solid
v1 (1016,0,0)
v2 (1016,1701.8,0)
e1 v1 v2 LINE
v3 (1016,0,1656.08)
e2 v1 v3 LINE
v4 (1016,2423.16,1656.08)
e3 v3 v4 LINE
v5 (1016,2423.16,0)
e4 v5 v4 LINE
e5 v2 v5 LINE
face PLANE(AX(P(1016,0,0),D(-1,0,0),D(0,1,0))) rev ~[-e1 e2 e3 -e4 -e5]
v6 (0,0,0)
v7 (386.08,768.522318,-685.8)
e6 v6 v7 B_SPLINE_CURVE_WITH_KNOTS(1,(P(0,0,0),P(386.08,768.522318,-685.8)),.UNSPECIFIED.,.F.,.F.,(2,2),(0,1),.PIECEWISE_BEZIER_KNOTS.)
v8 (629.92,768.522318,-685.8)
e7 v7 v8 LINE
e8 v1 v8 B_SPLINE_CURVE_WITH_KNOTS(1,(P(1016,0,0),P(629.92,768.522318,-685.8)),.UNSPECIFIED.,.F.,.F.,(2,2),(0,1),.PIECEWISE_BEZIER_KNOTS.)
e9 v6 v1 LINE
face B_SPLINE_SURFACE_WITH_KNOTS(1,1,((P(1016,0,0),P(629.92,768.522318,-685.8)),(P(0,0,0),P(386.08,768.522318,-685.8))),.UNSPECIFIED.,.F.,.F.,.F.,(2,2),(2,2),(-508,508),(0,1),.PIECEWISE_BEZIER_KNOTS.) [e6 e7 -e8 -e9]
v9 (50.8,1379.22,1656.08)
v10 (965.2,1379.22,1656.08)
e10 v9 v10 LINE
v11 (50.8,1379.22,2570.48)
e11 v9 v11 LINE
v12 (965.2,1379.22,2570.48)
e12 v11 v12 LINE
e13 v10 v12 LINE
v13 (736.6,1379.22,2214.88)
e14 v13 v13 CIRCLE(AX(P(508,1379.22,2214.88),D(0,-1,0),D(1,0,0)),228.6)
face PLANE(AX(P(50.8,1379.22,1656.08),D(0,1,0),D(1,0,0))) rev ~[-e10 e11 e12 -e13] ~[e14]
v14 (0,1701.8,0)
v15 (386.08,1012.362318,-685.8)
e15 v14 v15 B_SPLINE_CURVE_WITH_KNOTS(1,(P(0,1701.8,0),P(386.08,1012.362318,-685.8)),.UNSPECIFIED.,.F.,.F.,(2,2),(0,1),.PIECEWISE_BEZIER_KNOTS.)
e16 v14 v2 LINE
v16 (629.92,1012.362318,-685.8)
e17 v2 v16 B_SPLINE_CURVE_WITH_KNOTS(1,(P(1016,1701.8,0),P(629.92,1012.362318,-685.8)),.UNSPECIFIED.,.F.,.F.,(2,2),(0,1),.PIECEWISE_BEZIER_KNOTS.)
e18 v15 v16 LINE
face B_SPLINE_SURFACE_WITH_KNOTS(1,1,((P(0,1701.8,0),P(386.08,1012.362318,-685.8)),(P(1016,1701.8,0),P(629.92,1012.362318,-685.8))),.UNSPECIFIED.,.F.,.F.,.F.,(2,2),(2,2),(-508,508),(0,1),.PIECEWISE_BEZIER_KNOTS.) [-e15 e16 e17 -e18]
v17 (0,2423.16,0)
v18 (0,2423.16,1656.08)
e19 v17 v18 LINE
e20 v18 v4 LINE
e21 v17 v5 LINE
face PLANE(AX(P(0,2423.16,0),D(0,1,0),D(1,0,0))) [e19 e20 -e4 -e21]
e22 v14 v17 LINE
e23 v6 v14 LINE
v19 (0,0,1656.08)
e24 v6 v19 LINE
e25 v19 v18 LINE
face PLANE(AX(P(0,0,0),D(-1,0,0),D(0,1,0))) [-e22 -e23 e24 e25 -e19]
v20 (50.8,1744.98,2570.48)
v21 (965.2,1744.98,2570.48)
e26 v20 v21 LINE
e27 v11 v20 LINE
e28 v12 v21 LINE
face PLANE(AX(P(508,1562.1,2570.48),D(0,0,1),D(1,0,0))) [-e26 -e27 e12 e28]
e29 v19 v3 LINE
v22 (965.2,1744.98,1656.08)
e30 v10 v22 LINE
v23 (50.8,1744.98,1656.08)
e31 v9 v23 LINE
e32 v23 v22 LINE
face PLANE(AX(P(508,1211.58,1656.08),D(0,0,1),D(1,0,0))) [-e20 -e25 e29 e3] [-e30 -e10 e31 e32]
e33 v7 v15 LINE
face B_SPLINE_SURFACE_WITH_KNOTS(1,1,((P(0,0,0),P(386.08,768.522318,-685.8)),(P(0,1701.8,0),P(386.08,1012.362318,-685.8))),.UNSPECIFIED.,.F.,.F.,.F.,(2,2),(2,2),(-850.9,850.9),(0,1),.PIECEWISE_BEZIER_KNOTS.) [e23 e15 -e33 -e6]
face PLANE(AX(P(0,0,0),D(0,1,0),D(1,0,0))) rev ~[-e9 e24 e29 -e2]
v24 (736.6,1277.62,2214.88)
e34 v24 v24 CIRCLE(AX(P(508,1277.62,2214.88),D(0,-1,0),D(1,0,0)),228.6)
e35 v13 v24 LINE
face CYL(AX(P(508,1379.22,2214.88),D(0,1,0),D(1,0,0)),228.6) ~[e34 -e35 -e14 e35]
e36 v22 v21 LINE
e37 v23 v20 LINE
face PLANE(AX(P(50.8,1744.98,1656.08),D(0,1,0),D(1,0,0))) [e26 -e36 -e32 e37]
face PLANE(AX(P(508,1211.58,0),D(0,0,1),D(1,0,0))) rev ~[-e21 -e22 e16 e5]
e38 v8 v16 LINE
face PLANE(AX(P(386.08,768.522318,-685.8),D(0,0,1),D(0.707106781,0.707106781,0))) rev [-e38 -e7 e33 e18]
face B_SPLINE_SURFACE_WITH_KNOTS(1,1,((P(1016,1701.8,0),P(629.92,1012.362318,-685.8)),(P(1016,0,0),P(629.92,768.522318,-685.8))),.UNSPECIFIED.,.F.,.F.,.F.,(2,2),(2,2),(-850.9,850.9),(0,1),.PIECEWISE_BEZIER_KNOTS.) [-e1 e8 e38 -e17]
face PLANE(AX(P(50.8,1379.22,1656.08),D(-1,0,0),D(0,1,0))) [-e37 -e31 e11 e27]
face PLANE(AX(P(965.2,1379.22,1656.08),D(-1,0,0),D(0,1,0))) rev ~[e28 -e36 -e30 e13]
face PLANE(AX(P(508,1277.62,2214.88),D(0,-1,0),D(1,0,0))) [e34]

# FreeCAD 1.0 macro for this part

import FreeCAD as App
import Part
import Sketcher
Q = App.Units.Quantity


def add_polygon(sketch, points):
    """Adds a closed chain of lines whose ends are joined by coincident constraints."""
    first, n = sketch.GeometryCount, len(points)
    for a, b in zip(points, points[1:] + points[:1]):
        sketch.addGeometry(Part.LineSegment(App.Vector(*a, 0), App.Vector(*b, 0)), False)
    for i in range(n):
        sketch.addConstraint(Sketcher.Constraint("Coincident", first + i, 2, first + (i + 1) % n, 1))

doc = App.newDocument("Part")
body = doc.addObject("PartDesign::Body", "Body")

sketch1 = body.newObject("Sketcher::SketchObject", "Sketch")
sketch1.AttachmentSupport = (doc.getObject("XY_Plane"), [""])
sketch1.MapMode = "FlatFace"
add_polygon(sketch1, [(0, 2423), (0, 0), (1016, 0), (1016, 2423)])
sketch1.addConstraint([
    Sketcher.Constraint("Vertical", 0),
    Sketcher.Constraint("Horizontal", 1),
    Sketcher.Constraint("Vertical", 2),
    Sketcher.Constraint("Horizontal", 3),
    Sketcher.Constraint("Coincident", 0, 2, -1, 1),
    Sketcher.Constraint("DistanceX", 1, 1, 1, 2, Q("40 in")),
    Sketcher.Constraint("DistanceY", 0, 2, 0, 1, Q("95.4 in")),
])
pad1 = body.newObject("PartDesign::Pad", "Pad")
pad1.Profile = sketch1
pad1.Length = Q("65.2 in")

sketch2 = body.newObject("Sketcher::SketchObject", "Sketch001")
sketch2.AttachmentSupport = (doc.getObject("XY_Plane"), [""])
sketch2.MapMode = "FlatFace"
sketch2.AttachmentOffset = App.Placement(App.Vector(0, 0, 65.2 * 25.4), App.Rotation())
add_polygon(sketch2, [(51, 1745), (51, 1379), (965, 1379), (965, 1745)])
sketch2.addConstraint([
    Sketcher.Constraint("Vertical", 0),
    Sketcher.Constraint("Horizontal", 1),
    Sketcher.Constraint("Vertical", 2),
    Sketcher.Constraint("Horizontal", 3),
    Sketcher.Constraint("DistanceX", 1, 1, 1, 2, Q("36 in")),
    Sketcher.Constraint("DistanceY", 0, 2, 0, 1, Q("14.4 in")),
    Sketcher.Constraint("DistanceX", -1, 1, 0, 2, Q("2 in")),
    Sketcher.Constraint("DistanceY", -1, 1, 0, 2, Q("54.3 in")),
])
pad2 = body.newObject("PartDesign::Pad", "Pad001")
pad2.Profile = sketch2
pad2.Length = Q("36 in")

sketch3 = body.newObject("Sketcher::SketchObject", "Sketch002")
sketch3.AttachmentSupport = (doc.getObject("XZ_Plane"), [""])
sketch3.MapMode = "FlatFace"
sketch3.AttachmentOffset = App.Placement(App.Vector(0, 0, -54.3 * 25.4), App.Rotation())
sketch3.addGeometry(Part.Circle(App.Vector(508, 2215, 0), App.Vector(0, 0, 1), 229), False)
sketch3.addConstraint([
    Sketcher.Constraint("Diameter", 0, Q("18 in")),
    Sketcher.Constraint("DistanceX", -1, 1, 0, 3, Q("20 in")),
    Sketcher.Constraint("DistanceY", -1, 1, 0, 3, Q("87.2 in")),
])
pad3 = body.newObject("PartDesign::Pad", "Pad002")
pad3.Profile = sketch3
pad3.Length = Q("4 in")

sketch4 = body.newObject("Sketcher::SketchObject", "Sketch003")
sketch4.AttachmentSupport = (doc.getObject("XY_Plane"), [""])
sketch4.MapMode = "FlatFace"
add_polygon(sketch4, [(0, 0), (0, 1702), (1016, 1702), (1016, 0)])
sketch4.addConstraint([
    Sketcher.Constraint("Vertical", 0),
    Sketcher.Constraint("Horizontal", 1),
    Sketcher.Constraint("Vertical", 2),
    Sketcher.Constraint("Horizontal", 3),
    Sketcher.Constraint("Coincident", 3, 2, -1, 1),
    Sketcher.Constraint("DistanceX", 1, 1, 1, 2, Q("40 in")),
    Sketcher.Constraint("DistanceY", 0, 1, 0, 2, Q("67 in")),
])

sketch5 = body.newObject("Sketcher::SketchObject", "Sketch004")
sketch5.AttachmentSupport = (doc.getObject("XY_Plane"), [""])
sketch5.MapMode = "FlatFace"
sketch5.AttachmentOffset = App.Placement(App.Vector(0, 0, -27 * 25.4), App.Rotation())
add_polygon(sketch5, [(386, 1012), (386, 769), (630, 769), (630, 1012)])
sketch5.addConstraint([
    Sketcher.Constraint("Vertical", 0),
    Sketcher.Constraint("Horizontal", 1),
    Sketcher.Constraint("Vertical", 2),
    Sketcher.Constraint("Horizontal", 3),
    Sketcher.Constraint("Equal", 3, 0),
    Sketcher.Constraint("DistanceX", 1, 1, 1, 2, Q("9.6 in")),
    Sketcher.Constraint("DistanceX", -1, 1, 0, 2, Q("15.2 in")),
    Sketcher.Constraint("DistanceY", -1, 1, 0, 2, Q("768.522318 mm")),
])

additiveloft = body.newObject("PartDesign::AdditiveLoft", "AdditiveLoft")
additiveloft.Profile = sketch4
additiveloft.Sections = [sketch5]

doc.recompute()
